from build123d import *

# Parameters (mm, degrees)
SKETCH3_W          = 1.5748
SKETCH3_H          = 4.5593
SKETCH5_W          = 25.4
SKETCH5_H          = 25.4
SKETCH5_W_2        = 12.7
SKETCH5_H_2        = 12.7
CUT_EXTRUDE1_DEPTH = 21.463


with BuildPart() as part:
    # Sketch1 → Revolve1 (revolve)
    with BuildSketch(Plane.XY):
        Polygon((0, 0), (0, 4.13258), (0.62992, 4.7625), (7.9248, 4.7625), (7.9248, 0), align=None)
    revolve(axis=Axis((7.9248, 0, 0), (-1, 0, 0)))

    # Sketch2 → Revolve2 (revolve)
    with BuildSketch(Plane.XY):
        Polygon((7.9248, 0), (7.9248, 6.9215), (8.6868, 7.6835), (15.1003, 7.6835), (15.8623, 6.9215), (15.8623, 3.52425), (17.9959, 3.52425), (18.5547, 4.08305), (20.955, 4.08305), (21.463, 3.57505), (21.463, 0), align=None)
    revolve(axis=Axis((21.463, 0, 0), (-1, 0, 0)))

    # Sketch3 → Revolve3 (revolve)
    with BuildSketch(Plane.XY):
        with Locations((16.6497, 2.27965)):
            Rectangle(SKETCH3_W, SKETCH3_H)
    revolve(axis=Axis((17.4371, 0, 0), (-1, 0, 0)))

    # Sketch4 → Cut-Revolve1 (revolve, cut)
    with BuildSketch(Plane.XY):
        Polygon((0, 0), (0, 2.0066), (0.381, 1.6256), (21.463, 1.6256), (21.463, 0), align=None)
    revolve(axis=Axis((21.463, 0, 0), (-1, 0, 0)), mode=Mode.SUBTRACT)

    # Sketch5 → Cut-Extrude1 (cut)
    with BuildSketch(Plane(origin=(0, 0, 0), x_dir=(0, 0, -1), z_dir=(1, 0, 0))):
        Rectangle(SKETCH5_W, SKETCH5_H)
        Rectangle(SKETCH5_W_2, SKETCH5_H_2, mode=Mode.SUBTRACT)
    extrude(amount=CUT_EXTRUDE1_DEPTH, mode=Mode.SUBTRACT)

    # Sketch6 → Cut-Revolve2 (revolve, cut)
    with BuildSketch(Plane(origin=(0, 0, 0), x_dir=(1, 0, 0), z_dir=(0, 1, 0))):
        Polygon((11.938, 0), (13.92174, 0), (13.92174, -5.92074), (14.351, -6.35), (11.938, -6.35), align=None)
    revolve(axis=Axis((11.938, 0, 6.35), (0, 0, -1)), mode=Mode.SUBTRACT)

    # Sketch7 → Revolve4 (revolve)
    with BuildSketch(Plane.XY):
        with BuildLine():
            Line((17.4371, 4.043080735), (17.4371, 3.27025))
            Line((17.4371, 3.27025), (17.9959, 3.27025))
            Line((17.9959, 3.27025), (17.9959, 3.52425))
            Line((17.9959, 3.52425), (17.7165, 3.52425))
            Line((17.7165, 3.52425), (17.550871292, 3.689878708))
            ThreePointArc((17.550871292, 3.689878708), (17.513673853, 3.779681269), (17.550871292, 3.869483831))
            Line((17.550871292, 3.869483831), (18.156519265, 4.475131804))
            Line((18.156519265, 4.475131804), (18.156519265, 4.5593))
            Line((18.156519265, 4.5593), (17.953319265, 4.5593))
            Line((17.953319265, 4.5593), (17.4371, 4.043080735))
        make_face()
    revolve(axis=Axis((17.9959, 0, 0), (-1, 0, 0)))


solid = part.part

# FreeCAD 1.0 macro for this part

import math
import FreeCAD as App
import Part
import Sketcher
Q = App.Units.Quantity


def add_polygon(sketch, points):
    """Adds a closed chain of lines whose ends are joined by coincident constraints."""
    first, n = sketch.GeometryCount, len(points)
    for a, b in zip(points, points[1:] + points[:1]):
        sketch.addGeometry(Part.LineSegment(App.Vector(*a, 0), App.Vector(*b, 0)), False)
    for i in range(n):
        sketch.addConstraint(Sketcher.Constraint("Coincident", first + i, 2, first + (i + 1) % n, 1))

doc = App.newDocument("Part")
body = doc.addObject("PartDesign::Body", "Body")

sketch1 = body.newObject("Sketcher::SketchObject", "Sketch")
sketch1.AttachmentSupport = (doc.getObject("XY_Plane"), [""])
sketch1.MapMode = "FlatFace"
add_polygon(sketch1, [(0, 4.1), (0, 0), (7.9, 0), (7.9, 4.8), (0.6, 4.8)])
sketch1.addConstraint([
    Sketcher.Constraint("Vertical", 0),
    Sketcher.Constraint("Horizontal", 1),
    Sketcher.Constraint("Vertical", 2),
    Sketcher.Constraint("Horizontal", 3),
    Sketcher.Constraint("Coincident", 0, 2, -1, 1),
    Sketcher.Constraint("Angle", 4, Q("-135 deg")),
    Sketcher.Constraint("DistanceX", 1, 1, 1, 2, Q("0.312 in")),
    Sketcher.Constraint("DistanceY", 2, 1, 2, 2, Q("0.1875 in")),
    Sketcher.Constraint("DistanceX", 3, 2, 3, 1, Q("0.2872 in")),
])
revolution = body.newObject("PartDesign::Revolution", "Revolution")
revolution.Profile = sketch1
revolution.ReferenceAxis = (sketch1, ["H_Axis"])
revolution.Angle = 360

sketch2 = body.newObject("Sketcher::SketchObject", "Sketch001")
sketch2.AttachmentSupport = (doc.getObject("XY_Plane"), [""])
sketch2.MapMode = "FlatFace"
add_polygon(sketch2, [(7.9, 6.9), (7.9, 0), (21.5, 0), (21.5, 3.6), (21, 4.1), (18.6, 4.1), (18, 3.5), (15.9, 3.5), (15.9, 6.9), (15.1, 7.7), (8.7, 7.7)])
sketch2.addConstraint([
    Sketcher.Constraint("Vertical", 0),
    Sketcher.Constraint("Horizontal", 1),
    Sketcher.Constraint("Vertical", 2),
    Sketcher.Constraint("Horizontal", 4),
    Sketcher.Constraint("Horizontal", 6),
    Sketcher.Constraint("Vertical", 7),
    Sketcher.Constraint("Horizontal", 9),
    Sketcher.Constraint("PointOnObject", 0, 2, -1),
    Sketcher.Constraint("Perpendicular", 3, 5),
    Sketcher.Constraint("Perpendicular", 5, 8),
    Sketcher.Constraint("Perpendicular", 8, 10),
    Sketcher.Constraint("Horizontal", 7, 2, 10, 2),
    Sketcher.Constraint("Equal", 8, 10),
    Sketcher.Constraint("DistanceX", 1, 1, 1, 2, Q("0.533 in")),
    Sketcher.Constraint("DistanceX", 6, 2, 6, 1, Q("0.084 in")),
    Sketcher.Constraint("DistanceX", 3, 2, 2, 2, Q("0.02 in")),
    Sketcher.Constraint("DistanceX", 8, 2, 7, 2, Q("0.03 in")),
    Sketcher.Constraint("DistanceX", 4, 2, 4, 1, Q("0.0945 in")),
    Sketcher.Constraint("DistanceX", 9, 2, 9, 1, Q("0.2525 in")),
    Sketcher.Constraint("DistanceY", 0, 2, 0, 1, Q("0.2725 in")),
    Sketcher.Constraint("DistanceX", -1, 1, 0, 2, Q("0.312 in")),
    Sketcher.Constraint("DistanceY", 2, 1, 2, 2, 3.57505),
])
revolution2 = body.newObject("PartDesign::Revolution", "Revolution001")
revolution2.Profile = sketch2
revolution2.ReferenceAxis = (sketch2, ["H_Axis"])
revolution2.Angle = 360

sketch3 = body.newObject("Sketcher::SketchObject", "Sketch002")
sketch3.AttachmentSupport = (doc.getObject("XY_Plane"), [""])
sketch3.MapMode = "FlatFace"
add_polygon(sketch3, [(15.9, 4.6), (15.9, 0), (17.4, 0), (17.4, 4.6)])
sketch3.addConstraint([
    Sketcher.Constraint("Vertical", 0),
    Sketcher.Constraint("Horizontal", 1),
    Sketcher.Constraint("Vertical", 2),
    Sketcher.Constraint("Horizontal", 3),
    Sketcher.Constraint("PointOnObject", 0, 2, -1),
    Sketcher.Constraint("DistanceX", 1, 1, 1, 2, Q("0.062 in")),
    Sketcher.Constraint("DistanceY", 0, 2, 0, 1, Q("0.1795 in")),
    Sketcher.Constraint("DistanceX", -1, 1, 0, 2, Q("0.6245 in")),
])
revolution3 = body.newObject("PartDesign::Revolution", "Revolution002")
revolution3.Profile = sketch3
revolution3.ReferenceAxis = (sketch3, ["H_Axis"])
revolution3.Angle = 360

sketch4 = body.newObject("Sketcher::SketchObject", "Sketch003")
sketch4.AttachmentSupport = (doc.getObject("XY_Plane"), [""])
sketch4.MapMode = "FlatFace"
add_polygon(sketch4, [(0, 2), (0, 0), (21.5, 0), (21.5, 1.6), (0.4, 1.6)])
sketch4.addConstraint([
    Sketcher.Constraint("Vertical", 0),
    Sketcher.Constraint("Horizontal", 1),
    Sketcher.Constraint("Vertical", 2),
    Sketcher.Constraint("Horizontal", 3),
    Sketcher.Constraint("Coincident", 0, 2, -1, 1),
    Sketcher.Constraint("Angle", 4, Q("135 deg")),
    Sketcher.Constraint("DistanceX", 3, 2, 3, 1, Q("0.83 in")),
    Sketcher.Constraint("DistanceX", 1, 1, 1, 2, Q("0.845 in")),
    Sketcher.Constraint("DistanceY", 0, 2, 0, 1, Q("0.079 in")),
])
groove = body.newObject("PartDesign::Groove", "Groove")
groove.Profile = sketch4
groove.ReferenceAxis = (sketch4, ["H_Axis"])
groove.Angle = 360

sketch5 = body.newObject("Sketcher::SketchObject", "Sketch004")
sketch5.AttachmentSupport = (doc.getObject("YZ_Plane"), [""])
sketch5.MapMode = "FlatFace"
add_polygon(sketch5, [(13, 13), (-13, 13), (-13, -13), (13, -13)])
add_polygon(sketch5, [(-6, -6), (-6, 6), (6, 6), (6, -6)])
sketch5.addConstraint([
    Sketcher.Constraint("Horizontal", 0),
    Sketcher.Constraint("Vertical", 1),
    Sketcher.Constraint("Horizontal", 2),
    Sketcher.Constraint("Vertical", 3),
    Sketcher.Constraint("Vertical", 4),
    Sketcher.Constraint("Horizontal", 5),
    Sketcher.Constraint("Vertical", 6),
    Sketcher.Constraint("Horizontal", 7),
    Sketcher.Constraint("Symmetric", 0, 2, 2, 2, -1, 1),
    Sketcher.Constraint("Symmetric", 4, 2, 6, 2, -1, 1),
    Sketcher.Constraint("Equal", 2, 1),
    Sketcher.Constraint("Equal", 7, 4),
    Sketcher.Constraint("DistanceX", 0, 2, 0, 1, Q("1 in")),
    Sketcher.Constraint("DistanceX", 5, 1, 5, 2, Q("0.5 in")),
])
pocket1 = body.newObject("PartDesign::Pocket", "Pocket")
pocket1.Profile = sketch5
pocket1.Length = Q("0.845 in")
pocket1.Reversed = True

sketch6 = body.newObject("Sketcher::SketchObject", "Sketch005")
sketch6.AttachmentSupport = (doc.getObject("XZ_Plane"), [""])
sketch6.MapMode = "FlatFace"
add_polygon(sketch6, [(13.9, 0), (11.9, 0), (11.9, 6.3), (14.4, 6.3), (13.9, 5.9)])
sketch6.addGeometry(Part.LineSegment(App.Vector(11.9, 6.3, 0), App.Vector(11.9, 0, 0)), True)
sketch6.addConstraint([
    Sketcher.Constraint("Horizontal", 0),
    Sketcher.Constraint("Vertical", 1),
    Sketcher.Constraint("Horizontal", 2),
    Sketcher.Constraint("Vertical", 4),
    Sketcher.Constraint("Vertical", 5),
    Sketcher.Constraint("Coincident", 5, 1, 1, 2),
    Sketcher.Constraint("PointOnObject", 0, 2, -1),
    Sketcher.Constraint("PointOnObject", 5, 2, -1),
    Sketcher.Constraint("Angle", 3, Q("-135 deg")),
    Sketcher.Constraint("DistanceY", 1, 1, 1, 2, Q("0.25 in")),
    Sketcher.Constraint("DistanceX", 2, 1, 2, 2, Q("0.095 in")),
    Sketcher.Constraint("DistanceX", -1, 1, 0, 2, Q("0.47 in")),
    Sketcher.Constraint("DistanceX", 0, 2, 0, 1, Q("0.0781 in")),
])
groove2 = body.newObject("PartDesign::Groove", "Groove001")
groove2.Profile = sketch6
groove2.ReferenceAxis = (sketch6, ["Axis0"])
groove2.Angle = 360

sketch7 = body.newObject("Sketcher::SketchObject", "Sketch006")
sketch7.AttachmentSupport = (doc.getObject("XY_Plane"), [""])
sketch7.MapMode = "FlatFace"
sketch7.addGeometry([
    Part.LineSegment(App.Vector(17.44, 4.04, 0), App.Vector(17.44, 3.27, 0)),
    Part.LineSegment(App.Vector(17.44, 3.27, 0), App.Vector(18, 3.27, 0)),
    Part.LineSegment(App.Vector(18, 3.27, 0), App.Vector(18, 3.52, 0)),
    Part.LineSegment(App.Vector(18, 3.52, 0), App.Vector(17.72, 3.52, 0)),
    Part.LineSegment(App.Vector(17.72, 3.52, 0), App.Vector(17.55, 3.69, 0)),
    Part.ArcOfCircle(Part.Circle(App.Vector(17.64, 3.78, 0), App.Vector(0, 0, 1), 0.13), math.radians(135), math.radians(225)),
    Part.LineSegment(App.Vector(17.55, 3.87, 0), App.Vector(18.16, 4.48, 0)),
    Part.LineSegment(App.Vector(18.16, 4.48, 0), App.Vector(18.16, 4.56, 0)),
    Part.LineSegment(App.Vector(18.16, 4.56, 0), App.Vector(17.95, 4.56, 0)),
    Part.LineSegment(App.Vector(17.95, 4.56, 0), App.Vector(17.44, 4.04, 0)),
], False)
sketch7.addConstraint([
    Sketcher.Constraint("Coincident", 0, 2, 1, 1),
    Sketcher.Constraint("Coincident", 1, 2, 2, 1),
    Sketcher.Constraint("Coincident", 2, 2, 3, 1),
    Sketcher.Constraint("Coincident", 3, 2, 4, 1),
    Sketcher.Constraint("Tangent", 4, 2, 5, 2),
    Sketcher.Constraint("Tangent", 5, 1, 6, 1),
    Sketcher.Constraint("Coincident", 6, 2, 7, 1),
    Sketcher.Constraint("Coincident", 7, 2, 8, 1),
    Sketcher.Constraint("Coincident", 8, 2, 9, 1),
    Sketcher.Constraint("Coincident", 9, 2, 0, 1),
    Sketcher.Constraint("Vertical", 0),
    Sketcher.Constraint("Horizontal", 1),
    Sketcher.Constraint("Vertical", 2),
    Sketcher.Constraint("Horizontal", 3),
    Sketcher.Constraint("Vertical", 7),
    Sketcher.Constraint("Horizontal", 8),
    Sketcher.Constraint("Perpendicular", 4, 6),
    Sketcher.Constraint("Parallel", 6, 9),
    Sketcher.Constraint("Vertical", 4, 2, 5, 1),
    Sketcher.Constraint("Radius", 5, Q("0.005 in")),
    Sketcher.Constraint("DistanceY", 2, 1, 2, 2, Q("0.01 in")),
    Sketcher.Constraint("DistanceX", 1, 1, 1, 2, Q("0.022 in")),
    Sketcher.Constraint("DistanceX", 3, 2, 3, 1, Q("0.011 in")),
    Sketcher.Constraint("DistanceX", 8, 2, 8, 1, Q("0.008 in")),
    Sketcher.Constraint("DistanceX", -1, 1, 0, 2, Q("0.6865 in")),
    Sketcher.Constraint("DistanceY", -1, 1, 7, 2, Q("0.1795 in")),
    Sketcher.Constraint("DistanceY", 0, 2, 0, 1, 0.772831),
    Sketcher.Constraint("DistanceY", 7, 1, 7, 2, 0.084168),
    Sketcher.Constraint("DistanceY", -1, 1, 5, 3, 3.779681),
])
revolution4 = body.newObject("PartDesign::Revolution", "Revolution003")
revolution4.Profile = sketch7
revolution4.ReferenceAxis = (sketch7, ["H_Axis"])
revolution4.Angle = 360

doc.recompute()
